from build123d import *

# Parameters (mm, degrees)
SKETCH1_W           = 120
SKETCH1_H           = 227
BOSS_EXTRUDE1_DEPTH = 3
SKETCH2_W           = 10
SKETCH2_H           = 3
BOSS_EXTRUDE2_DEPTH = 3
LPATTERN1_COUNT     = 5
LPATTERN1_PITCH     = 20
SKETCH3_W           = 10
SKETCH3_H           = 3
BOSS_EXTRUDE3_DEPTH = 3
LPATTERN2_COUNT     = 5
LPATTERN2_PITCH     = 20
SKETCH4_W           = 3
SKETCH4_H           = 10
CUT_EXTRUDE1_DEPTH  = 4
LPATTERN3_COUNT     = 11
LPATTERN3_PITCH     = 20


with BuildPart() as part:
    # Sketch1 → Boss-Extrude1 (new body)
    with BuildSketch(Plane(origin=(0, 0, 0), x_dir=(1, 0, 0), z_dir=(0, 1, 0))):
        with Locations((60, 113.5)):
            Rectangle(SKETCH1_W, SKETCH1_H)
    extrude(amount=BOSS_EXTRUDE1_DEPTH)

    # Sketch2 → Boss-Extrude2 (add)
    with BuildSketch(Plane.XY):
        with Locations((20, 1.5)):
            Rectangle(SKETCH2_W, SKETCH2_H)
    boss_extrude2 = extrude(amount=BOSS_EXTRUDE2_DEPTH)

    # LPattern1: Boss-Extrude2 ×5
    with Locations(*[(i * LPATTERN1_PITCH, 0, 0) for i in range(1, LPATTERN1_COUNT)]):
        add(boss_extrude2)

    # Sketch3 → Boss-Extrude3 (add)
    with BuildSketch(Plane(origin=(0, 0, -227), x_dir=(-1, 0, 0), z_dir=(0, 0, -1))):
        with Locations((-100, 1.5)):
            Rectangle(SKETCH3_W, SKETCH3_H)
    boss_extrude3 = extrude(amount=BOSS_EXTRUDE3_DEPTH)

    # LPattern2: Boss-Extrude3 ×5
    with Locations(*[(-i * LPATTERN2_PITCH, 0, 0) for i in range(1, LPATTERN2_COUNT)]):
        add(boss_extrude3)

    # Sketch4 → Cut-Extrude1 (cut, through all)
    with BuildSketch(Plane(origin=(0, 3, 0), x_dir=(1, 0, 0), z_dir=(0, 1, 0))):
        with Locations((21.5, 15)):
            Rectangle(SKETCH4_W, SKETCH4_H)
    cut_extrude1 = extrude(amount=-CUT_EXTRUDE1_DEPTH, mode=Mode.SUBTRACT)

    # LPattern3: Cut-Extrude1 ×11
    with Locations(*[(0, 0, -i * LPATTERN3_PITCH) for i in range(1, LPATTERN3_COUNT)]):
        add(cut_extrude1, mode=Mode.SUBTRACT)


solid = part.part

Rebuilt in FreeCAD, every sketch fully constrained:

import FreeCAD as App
import Part
import Sketcher
from FreeCAD import Vector

doc = App.newDocument("Part")
body = doc.addObject("PartDesign::Body", "Body")

sketch1 = body.newObject("Sketcher::SketchObject", "Sketch")
sketch1.AttachmentSupport = (doc.getObject("XZ_Plane"), [""])
sketch1.MapMode = "FlatFace"
sketch1.addGeometry([
    Part.LineSegment(Vector(0, -227, 0), Vector(0, 0, 0)),
    Part.LineSegment(Vector(0, 0, 0), Vector(120, 0, 0)),
    Part.LineSegment(Vector(120, 0, 0), Vector(120, -227, 0)),
    Part.LineSegment(Vector(120, -227, 0), Vector(0, -227, 0)),
], False)
sketch1.addConstraint([
    Sketcher.Constraint("Coincident", 0, 2, 1, 1),
    Sketcher.Constraint("Coincident", 1, 2, 2, 1),
    Sketcher.Constraint("Coincident", 2, 2, 3, 1),
    Sketcher.Constraint("Coincident", 3, 2, 0, 1),
    Sketcher.Constraint("Vertical", 0),
    Sketcher.Constraint("Horizontal", 1),
    Sketcher.Constraint("Vertical", 2),
    Sketcher.Constraint("Horizontal", 3),
    Sketcher.Constraint("Coincident", 0, 2, -1, 1),
    Sketcher.Constraint("DistanceX", 1, 1, 1, 2, 120.0),
    Sketcher.Constraint("DistanceY", 0, 1, 0, 2, 227.0),
])
pad1 = body.newObject("PartDesign::Pad", "Pad")
pad1.Profile = sketch1
pad1.Length = 3
pad1.Reversed = True

sketch2 = body.newObject("Sketcher::SketchObject", "Sketch001")
sketch2.AttachmentSupport = (doc.getObject("XY_Plane"), [""])
sketch2.MapMode = "FlatFace"
sketch2.addGeometry([
    Part.LineSegment(Vector(15, 3, 0), Vector(15, 0, 0)),
    Part.LineSegment(Vector(15, 0, 0), Vector(25, 0, 0)),
    Part.LineSegment(Vector(25, 0, 0), Vector(25, 3, 0)),
    Part.LineSegment(Vector(25, 3, 0), Vector(15, 3, 0)),
], False)
sketch2.addConstraint([
    Sketcher.Constraint("Coincident", 0, 2, 1, 1),
    Sketcher.Constraint("Coincident", 1, 2, 2, 1),
    Sketcher.Constraint("Coincident", 2, 2, 3, 1),
    Sketcher.Constraint("Coincident", 3, 2, 0, 1),
    Sketcher.Constraint("Vertical", 0),
    Sketcher.Constraint("Horizontal", 1),
    Sketcher.Constraint("Vertical", 2),
    Sketcher.Constraint("Horizontal", 3),
    Sketcher.Constraint("PointOnObject", 0, 2, -1),
    Sketcher.Constraint("DistanceX", 1, 1, 1, 2, 10.0),
    Sketcher.Constraint("DistanceY", 0, 2, 0, 1, 3.0),
    Sketcher.Constraint("DistanceX", -1, 1, 0, 2, 15.0),
])
pad2 = body.newObject("PartDesign::Pad", "Pad001")
pad2.Profile = sketch2
pad2.Length = 3
doc.recompute()

linearpattern = body.newObject("PartDesign::LinearPattern", "LinearPattern")
linearpattern.Originals = [pad2]
linearpattern.Direction = (doc.getObject("X_Axis"), [""])
linearpattern.Mode = "offset"
linearpattern.Offset = 20
linearpattern.Occurrences = 5
body.Tip = linearpattern

sketch3 = body.newObject("Sketcher::SketchObject", "Sketch002")
sketch3.AttachmentSupport = (doc.getObject("XY_Plane"), [""])
sketch3.MapMode = "FlatFace"
sketch3.AttachmentOffset = App.Placement(Vector(0, 0, -227), App.Rotation())
sketch3.addGeometry([
    Part.LineSegment(Vector(105, 3, 0), Vector(105, 0, 0)),
    Part.LineSegment(Vector(105, 0, 0), Vector(95, 0, 0)),
    Part.LineSegment(Vector(95, 0, 0), Vector(95, 3, 0)),
    Part.LineSegment(Vector(95, 3, 0), Vector(105, 3, 0)),
], False)
sketch3.addConstraint([
    Sketcher.Constraint("Coincident", 0, 2, 1, 1),
    Sketcher.Constraint("Coincident", 1, 2, 2, 1),
    Sketcher.Constraint("Coincident", 2, 2, 3, 1),
    Sketcher.Constraint("Coincident", 3, 2, 0, 1),
    Sketcher.Constraint("Vertical", 0),
    Sketcher.Constraint("Horizontal", 1),
    Sketcher.Constraint("Vertical", 2),
    Sketcher.Constraint("Horizontal", 3),
    Sketcher.Constraint("PointOnObject", 0, 2, -1),
    Sketcher.Constraint("DistanceX", 1, 2, 1, 1, 10.0),
    Sketcher.Constraint("DistanceY", 0, 2, 0, 1, 3.0),
    Sketcher.Constraint("DistanceX", -1, 1, 0, 2, 105.0),
])
pad3 = body.newObject("PartDesign::Pad", "Pad002")
pad3.Profile = sketch3
pad3.Length = 3
pad3.Reversed = True
doc.recompute()

linearpattern2 = body.newObject("PartDesign::LinearPattern", "LinearPattern001")
linearpattern2.Originals = [pad3]
linearpattern2.Direction = (doc.getObject("X_Axis"), [""])
linearpattern2.Mode = "offset"
linearpattern2.Offset = 20
linearpattern2.Occurrences = 5
linearpattern2.Reversed = True
body.Tip = linearpattern2

sketch4 = body.newObject("Sketcher::SketchObject", "Sketch003")
sketch4.AttachmentSupport = (doc.getObject("XZ_Plane"), [""])
sketch4.MapMode = "FlatFace"
sketch4.AttachmentOffset = App.Placement(Vector(0, 0, -3), App.Rotation())
sketch4.addGeometry([
    Part.LineSegment(Vector(20, -20, 0), Vector(20, -10, 0)),
    Part.LineSegment(Vector(20, -10, 0), Vector(23, -10, 0)),
    Part.LineSegment(Vector(23, -10, 0), Vector(23, -20, 0)),
    Part.LineSegment(Vector(23, -20, 0), Vector(20, -20, 0)),
], False)
sketch4.addConstraint([
    Sketcher.Constraint("Coincident", 0, 2, 1, 1),
    Sketcher.Constraint("Coincident", 1, 2, 2, 1),
    Sketcher.Constraint("Coincident", 2, 2, 3, 1),
    Sketcher.Constraint("Coincident", 3, 2, 0, 1),
    Sketcher.Constraint("Vertical", 0),
    Sketcher.Constraint("Horizontal", 1),
    Sketcher.Constraint("Vertical", 2),
    Sketcher.Constraint("Horizontal", 3),
    Sketcher.Constraint("DistanceX", 1, 1, 1, 2, 3.0),
    Sketcher.Constraint("DistanceY", 0, 1, 0, 2, 10.0),
    Sketcher.Constraint("DistanceX", -1, 1, 0, 2, 20.0),
    Sketcher.Constraint("DistanceY", 0, 2, -1, 1, 10.0),
])
pocket1 = body.newObject("PartDesign::Pocket", "Pocket")
pocket1.Profile = sketch4
pocket1.Type = "ThroughAll"
pocket1.Reversed = True
doc.recompute()

linearpattern3 = body.newObject("PartDesign::LinearPattern", "LinearPattern002")
linearpattern3.Originals = [pocket1]
linearpattern3.Direction = (doc.getObject("Z_Axis"), [""])
linearpattern3.Mode = "offset"
linearpattern3.Offset = 20
linearpattern3.Occurrences = 11
linearpattern3.Reversed = True
body.Tip = linearpattern3

doc.recompute()
